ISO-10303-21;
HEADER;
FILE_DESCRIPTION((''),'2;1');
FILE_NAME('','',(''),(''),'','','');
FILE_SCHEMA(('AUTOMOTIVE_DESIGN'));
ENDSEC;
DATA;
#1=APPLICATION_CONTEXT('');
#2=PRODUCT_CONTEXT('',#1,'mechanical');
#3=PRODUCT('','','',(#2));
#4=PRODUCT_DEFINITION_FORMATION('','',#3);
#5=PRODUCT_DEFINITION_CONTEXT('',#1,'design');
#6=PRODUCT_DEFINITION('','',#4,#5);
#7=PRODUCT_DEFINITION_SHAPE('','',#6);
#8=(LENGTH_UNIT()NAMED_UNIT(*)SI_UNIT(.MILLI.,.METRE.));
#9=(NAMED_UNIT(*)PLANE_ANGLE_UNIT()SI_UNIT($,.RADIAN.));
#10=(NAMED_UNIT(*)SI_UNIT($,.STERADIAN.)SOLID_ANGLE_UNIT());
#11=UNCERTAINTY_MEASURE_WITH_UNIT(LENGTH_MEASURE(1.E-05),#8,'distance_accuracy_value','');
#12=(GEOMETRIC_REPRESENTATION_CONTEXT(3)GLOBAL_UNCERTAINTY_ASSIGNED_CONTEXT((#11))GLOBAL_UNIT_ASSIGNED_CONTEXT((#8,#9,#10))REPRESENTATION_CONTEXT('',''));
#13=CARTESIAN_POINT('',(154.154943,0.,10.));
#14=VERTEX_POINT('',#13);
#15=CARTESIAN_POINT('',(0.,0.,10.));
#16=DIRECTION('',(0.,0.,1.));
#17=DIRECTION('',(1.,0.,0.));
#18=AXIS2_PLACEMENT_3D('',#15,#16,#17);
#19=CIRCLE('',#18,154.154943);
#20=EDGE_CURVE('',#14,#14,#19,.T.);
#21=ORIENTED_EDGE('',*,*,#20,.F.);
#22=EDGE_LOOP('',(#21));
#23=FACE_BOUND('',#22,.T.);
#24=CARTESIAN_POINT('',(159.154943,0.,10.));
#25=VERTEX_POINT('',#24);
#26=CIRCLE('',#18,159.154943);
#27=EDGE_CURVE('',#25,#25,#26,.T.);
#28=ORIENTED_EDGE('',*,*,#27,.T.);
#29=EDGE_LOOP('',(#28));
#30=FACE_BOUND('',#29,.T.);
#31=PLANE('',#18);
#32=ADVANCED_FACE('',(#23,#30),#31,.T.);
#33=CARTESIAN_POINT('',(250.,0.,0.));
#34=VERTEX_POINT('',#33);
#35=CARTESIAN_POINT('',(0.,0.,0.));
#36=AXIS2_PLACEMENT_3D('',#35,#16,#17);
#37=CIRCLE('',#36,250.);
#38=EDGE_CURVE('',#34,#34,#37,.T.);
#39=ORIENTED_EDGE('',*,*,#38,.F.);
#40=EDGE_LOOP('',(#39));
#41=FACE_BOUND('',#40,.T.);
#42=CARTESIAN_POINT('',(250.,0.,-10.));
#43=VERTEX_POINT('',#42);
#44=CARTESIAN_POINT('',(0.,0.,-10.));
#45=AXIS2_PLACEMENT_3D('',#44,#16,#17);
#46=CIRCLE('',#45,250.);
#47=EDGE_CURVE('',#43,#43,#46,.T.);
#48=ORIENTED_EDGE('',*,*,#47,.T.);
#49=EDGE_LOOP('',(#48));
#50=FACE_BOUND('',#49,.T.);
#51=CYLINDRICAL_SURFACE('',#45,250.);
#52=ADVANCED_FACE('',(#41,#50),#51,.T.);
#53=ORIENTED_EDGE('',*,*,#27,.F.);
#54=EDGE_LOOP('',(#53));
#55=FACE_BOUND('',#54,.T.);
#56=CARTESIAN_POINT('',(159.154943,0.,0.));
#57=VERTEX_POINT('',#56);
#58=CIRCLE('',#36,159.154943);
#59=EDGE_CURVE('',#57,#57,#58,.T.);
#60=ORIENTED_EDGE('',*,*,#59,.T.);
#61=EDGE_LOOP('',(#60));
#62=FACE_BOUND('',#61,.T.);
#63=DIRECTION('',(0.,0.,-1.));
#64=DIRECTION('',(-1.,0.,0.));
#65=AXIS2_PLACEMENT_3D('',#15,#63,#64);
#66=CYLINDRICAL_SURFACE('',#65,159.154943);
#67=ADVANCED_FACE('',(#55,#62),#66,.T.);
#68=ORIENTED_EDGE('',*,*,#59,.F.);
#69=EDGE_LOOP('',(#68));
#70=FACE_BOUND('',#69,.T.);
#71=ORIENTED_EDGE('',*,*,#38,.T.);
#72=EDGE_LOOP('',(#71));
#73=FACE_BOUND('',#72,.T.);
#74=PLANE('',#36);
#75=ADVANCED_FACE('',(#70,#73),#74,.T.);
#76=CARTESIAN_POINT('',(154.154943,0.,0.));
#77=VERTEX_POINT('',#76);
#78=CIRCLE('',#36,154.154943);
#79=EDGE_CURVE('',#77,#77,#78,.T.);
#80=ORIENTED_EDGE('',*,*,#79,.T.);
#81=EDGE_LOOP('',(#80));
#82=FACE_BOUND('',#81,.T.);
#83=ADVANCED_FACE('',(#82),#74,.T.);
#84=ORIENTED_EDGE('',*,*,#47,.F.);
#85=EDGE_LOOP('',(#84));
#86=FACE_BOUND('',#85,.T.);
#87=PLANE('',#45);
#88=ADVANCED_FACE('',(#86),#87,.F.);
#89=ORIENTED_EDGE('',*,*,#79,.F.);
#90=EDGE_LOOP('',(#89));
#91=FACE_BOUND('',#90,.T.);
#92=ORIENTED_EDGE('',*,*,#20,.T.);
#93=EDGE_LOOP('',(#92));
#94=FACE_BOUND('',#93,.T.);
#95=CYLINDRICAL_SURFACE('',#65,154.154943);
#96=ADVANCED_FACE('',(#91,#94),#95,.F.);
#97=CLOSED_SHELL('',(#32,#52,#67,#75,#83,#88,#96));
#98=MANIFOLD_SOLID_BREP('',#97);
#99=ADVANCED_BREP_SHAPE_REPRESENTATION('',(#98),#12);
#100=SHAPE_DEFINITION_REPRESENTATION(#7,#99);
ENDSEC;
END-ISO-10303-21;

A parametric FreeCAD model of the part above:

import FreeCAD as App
import Part
import Sketcher

V = App.Vector

doc = App.newDocument("Part")
body = doc.addObject("PartDesign::Body", "Body")

# Sketch on XY plane
sketch1 = body.newObject("Sketcher::SketchObject", "Sketch")
sketch1.AttachmentSupport = (doc.getObject("XY_Plane"), [""])
sketch1.MapMode = "FlatFace"
sketch1.addGeometry([
    Part.Circle(V(0, 0, 0), V(0, 0, 1), 159),
    Part.Circle(V(0, 0, 0), V(0, 0, 1), 154),
], False)
sketch1.addConstraint([
    Sketcher.Constraint("Coincident", 0, 3, -1, 1),
    Sketcher.Constraint("Coincident", 1, 3, -1, 1),
    Sketcher.Constraint("Diameter", 0, 318.309886),
    Sketcher.Constraint("Diameter", 1, 308.309886),
])
pad1 = body.newObject("PartDesign::Pad", "Pad")
pad1.Profile = sketch1
pad1.Length = 10

# Sketch on XY plane
sketch2 = body.newObject("Sketcher::SketchObject", "Sketch001")
sketch2.AttachmentSupport = (doc.getObject("XY_Plane"), [""])
sketch2.MapMode = "FlatFace"
sketch2.addGeometry(Part.Circle(V(0, 0, 0), V(0, 0, 1), 250), False)
sketch2.addConstraint([
    Sketcher.Constraint("Coincident", 0, 3, -1, 1),
    Sketcher.Constraint("Diameter", 0, 500.0),
])
pad2 = body.newObject("PartDesign::Pad", "Pad001")
pad2.Profile = sketch2
pad2.Length = 10
pad2.Reversed = True

doc.recompute()
